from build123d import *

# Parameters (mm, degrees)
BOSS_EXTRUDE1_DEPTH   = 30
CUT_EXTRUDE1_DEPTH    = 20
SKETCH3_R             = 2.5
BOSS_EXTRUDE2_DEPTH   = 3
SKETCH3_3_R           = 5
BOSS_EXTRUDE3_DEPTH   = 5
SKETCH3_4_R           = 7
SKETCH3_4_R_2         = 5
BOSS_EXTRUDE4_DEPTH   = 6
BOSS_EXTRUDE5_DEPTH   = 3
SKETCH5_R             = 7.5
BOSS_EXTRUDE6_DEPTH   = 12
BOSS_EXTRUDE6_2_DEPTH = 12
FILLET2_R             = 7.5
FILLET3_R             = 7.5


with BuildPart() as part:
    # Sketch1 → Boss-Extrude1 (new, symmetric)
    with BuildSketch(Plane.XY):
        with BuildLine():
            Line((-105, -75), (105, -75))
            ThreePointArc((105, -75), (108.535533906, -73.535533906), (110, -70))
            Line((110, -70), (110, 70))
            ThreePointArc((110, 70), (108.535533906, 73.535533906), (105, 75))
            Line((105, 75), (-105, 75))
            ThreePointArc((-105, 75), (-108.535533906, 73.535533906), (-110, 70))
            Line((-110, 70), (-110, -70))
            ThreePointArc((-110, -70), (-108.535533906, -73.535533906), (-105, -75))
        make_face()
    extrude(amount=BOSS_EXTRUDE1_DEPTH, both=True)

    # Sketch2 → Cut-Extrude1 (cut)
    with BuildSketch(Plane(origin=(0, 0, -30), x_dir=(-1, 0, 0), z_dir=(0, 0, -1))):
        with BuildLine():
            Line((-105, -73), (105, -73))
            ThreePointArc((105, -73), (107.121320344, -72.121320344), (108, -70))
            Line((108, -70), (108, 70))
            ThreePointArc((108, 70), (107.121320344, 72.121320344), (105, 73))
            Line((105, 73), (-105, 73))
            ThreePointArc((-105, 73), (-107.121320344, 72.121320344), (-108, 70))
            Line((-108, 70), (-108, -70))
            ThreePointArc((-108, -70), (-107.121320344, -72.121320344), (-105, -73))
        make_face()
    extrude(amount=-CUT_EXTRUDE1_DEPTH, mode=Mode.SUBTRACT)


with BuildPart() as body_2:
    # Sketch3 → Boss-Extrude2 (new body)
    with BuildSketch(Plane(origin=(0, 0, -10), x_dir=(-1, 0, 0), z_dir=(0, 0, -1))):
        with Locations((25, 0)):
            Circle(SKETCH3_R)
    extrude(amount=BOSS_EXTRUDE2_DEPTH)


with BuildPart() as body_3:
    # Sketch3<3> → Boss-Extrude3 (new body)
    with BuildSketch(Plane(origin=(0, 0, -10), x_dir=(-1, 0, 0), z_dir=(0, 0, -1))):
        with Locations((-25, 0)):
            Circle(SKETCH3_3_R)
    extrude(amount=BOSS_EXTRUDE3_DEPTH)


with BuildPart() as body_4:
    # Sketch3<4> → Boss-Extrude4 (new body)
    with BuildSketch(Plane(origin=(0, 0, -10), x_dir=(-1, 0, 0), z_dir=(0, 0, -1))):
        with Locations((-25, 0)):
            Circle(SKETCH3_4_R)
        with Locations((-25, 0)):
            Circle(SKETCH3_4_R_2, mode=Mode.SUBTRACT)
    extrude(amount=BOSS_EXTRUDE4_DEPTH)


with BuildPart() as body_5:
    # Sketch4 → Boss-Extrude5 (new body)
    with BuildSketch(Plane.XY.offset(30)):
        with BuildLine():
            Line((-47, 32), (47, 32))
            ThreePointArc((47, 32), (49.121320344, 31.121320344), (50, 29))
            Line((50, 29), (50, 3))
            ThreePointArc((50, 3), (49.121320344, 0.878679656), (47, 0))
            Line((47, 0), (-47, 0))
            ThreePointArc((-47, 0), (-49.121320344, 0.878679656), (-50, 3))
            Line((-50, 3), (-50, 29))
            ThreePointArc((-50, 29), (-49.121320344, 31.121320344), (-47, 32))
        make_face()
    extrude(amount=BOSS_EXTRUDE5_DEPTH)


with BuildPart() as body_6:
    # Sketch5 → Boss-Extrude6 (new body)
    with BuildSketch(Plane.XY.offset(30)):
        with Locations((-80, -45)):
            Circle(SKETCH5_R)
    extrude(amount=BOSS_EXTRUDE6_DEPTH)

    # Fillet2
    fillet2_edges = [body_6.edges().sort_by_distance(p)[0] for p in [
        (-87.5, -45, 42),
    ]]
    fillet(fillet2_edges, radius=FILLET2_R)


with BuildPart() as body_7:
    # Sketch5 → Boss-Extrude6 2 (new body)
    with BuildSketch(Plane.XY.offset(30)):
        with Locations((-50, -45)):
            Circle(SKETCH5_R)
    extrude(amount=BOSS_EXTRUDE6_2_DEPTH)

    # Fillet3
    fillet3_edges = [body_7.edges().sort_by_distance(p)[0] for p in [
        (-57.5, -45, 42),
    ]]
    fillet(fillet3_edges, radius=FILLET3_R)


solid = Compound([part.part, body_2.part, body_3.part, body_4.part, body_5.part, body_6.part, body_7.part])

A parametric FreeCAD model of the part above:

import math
import FreeCAD as App
import Part
import Sketcher

V = App.Vector
Q = App.Units.Quantity


def edges_at(feature, points):
    """Names of the edges that pass closest to the given points."""
    edges = feature.Shape.Edges
    near = lambda p: min(range(len(edges)), key=lambda i: edges[i].distToShape(Part.Vertex(*p))[0])
    return sorted({f"Edge{near(p) + 1}" for p in points})

doc = App.newDocument("Part")
body = doc.addObject("PartDesign::Body", "Body")

# Sketch on XY plane
sketch1 = doc.addObject("Sketcher::SketchObject", "Sketch")
body.addObject(sketch1)
sketch1.AttachmentSupport = (doc.XY_Plane, [""])
sketch1.MapMode = "FlatFace"
sketch1.addGeometry([
    Part.LineSegment(V(-105, -75, 0), V(105, -75, 0)),  # 0
    Part.ArcOfCircle(Part.Circle(V(105, -70, 0), V(0, 0, 1), 5), math.radians(-90), math.radians(0)),  # 1
    Part.LineSegment(V(110, -70, 0), V(110, 70, 0)),  # 2
    Part.ArcOfCircle(Part.Circle(V(105, 70, 0), V(0, 0, 1), 5), math.radians(0), math.radians(90)),  # 3
    Part.LineSegment(V(105, 75, 0), V(-105, 75, 0)),  # 4
    Part.ArcOfCircle(Part.Circle(V(-105, 70, 0), V(0, 0, 1), 5), math.radians(90), math.radians(180)),  # 5
    Part.LineSegment(V(-110, 70, 0), V(-110, -70, 0)),  # 6
    Part.ArcOfCircle(Part.Circle(V(-105, -70, 0), V(0, 0, 1), 5), math.radians(180), math.radians(270)),  # 7
], False)
sketch1.addConstraint([
    Sketcher.Constraint("Tangent", 0, 2, 1, 1),
    Sketcher.Constraint("Tangent", 1, 2, 2, 1),
    Sketcher.Constraint("Tangent", 2, 2, 3, 1),
    Sketcher.Constraint("Tangent", 3, 2, 4, 1),
    Sketcher.Constraint("Tangent", 4, 2, 5, 1),
    Sketcher.Constraint("Tangent", 5, 2, 6, 1),
    Sketcher.Constraint("Tangent", 6, 2, 7, 1),
    Sketcher.Constraint("Tangent", 7, 2, 0, 1),
    Sketcher.Constraint("Horizontal", 0),
    Sketcher.Constraint("Vertical", 2),
    Sketcher.Constraint("Horizontal", 4),
    Sketcher.Constraint("Vertical", 6),
    Sketcher.Constraint("Equal", 1, 3),
    Sketcher.Constraint("Equal", 3, 5),
    Sketcher.Constraint("Equal", 5, 7),
    Sketcher.Constraint("Symmetric", 1, 3, 5, 3, -1, 1),
    Sketcher.Constraint("Radius", 1, Q("5 mm")),
    Sketcher.Constraint("DistanceX", 0, 1, 0, 2, Q("210 mm")),
    Sketcher.Constraint("DistanceY", 2, 1, 2, 2, Q("140 mm")),
])
pad1 = doc.addObject("PartDesign::Pad", "Pad")
body.addObject(pad1)
pad1.Profile = sketch1
pad1.Length = 60
pad1.Midplane = True

# Sketch on XY plane
sketch2 = doc.addObject("Sketcher::SketchObject", "Sketch001")
body.addObject(sketch2)
sketch2.AttachmentSupport = (doc.XY_Plane, [""])
sketch2.MapMode = "FlatFace"
sketch2.AttachmentOffset = App.Placement(V(0, 0, -30), App.Rotation())
sketch2.addGeometry([
    Part.LineSegment(V(105, -73, 0), V(-105, -73, 0)),  # 0
    Part.ArcOfCircle(Part.Circle(V(-105, -70, 0), V(0, 0, 1), 3), math.radians(180), math.radians(270)),  # 1
    Part.LineSegment(V(-108, -70, 0), V(-108, 70, 0)),  # 2
    Part.ArcOfCircle(Part.Circle(V(-105, 70, 0), V(0, 0, 1), 3), math.radians(90), math.radians(180)),  # 3
    Part.LineSegment(V(-105, 73, 0), V(105, 73, 0)),  # 4
    Part.ArcOfCircle(Part.Circle(V(105, 70, 0), V(0, 0, 1), 3), math.radians(0), math.radians(90)),  # 5
    Part.LineSegment(V(108, 70, 0), V(108, -70, 0)),  # 6
    Part.ArcOfCircle(Part.Circle(V(105, -70, 0), V(0, 0, 1), 3), math.radians(-90), math.radians(0)),  # 7
], False)
sketch2.addConstraint([
    Sketcher.Constraint("Tangent", 0, 2, 1, 2),
    Sketcher.Constraint("Tangent", 1, 1, 2, 1),
    Sketcher.Constraint("Tangent", 2, 2, 3, 2),
    Sketcher.Constraint("Tangent", 3, 1, 4, 1),
    Sketcher.Constraint("Tangent", 4, 2, 5, 2),
    Sketcher.Constraint("Tangent", 5, 1, 6, 1),
    Sketcher.Constraint("Tangent", 6, 2, 7, 2),
    Sketcher.Constraint("Tangent", 7, 1, 0, 1),
    Sketcher.Constraint("Horizontal", 0),
    Sketcher.Constraint("Vertical", 2),
    Sketcher.Constraint("Horizontal", 4),
    Sketcher.Constraint("Vertical", 6),
    Sketcher.Constraint("Equal", 1, 3),
    Sketcher.Constraint("Equal", 3, 5),
    Sketcher.Constraint("Equal", 5, 7),
    Sketcher.Constraint("Symmetric", 1, 3, 5, 3, -1, 1),
    Sketcher.Constraint("Radius", 1, Q("3 mm")),
    Sketcher.Constraint("DistanceX", 0, 2, 0, 1, Q("210 mm")),
    Sketcher.Constraint("DistanceY", 2, 1, 2, 2, Q("140 mm")),
])
pocket1 = doc.addObject("PartDesign::Pocket", "Pocket")
body.addObject(pocket1)
pocket1.Profile = sketch2
pocket1.Length = 20
pocket1.Reversed = True
body2 = doc.addObject("PartDesign::Body", "Body001")

# Sketch on XY plane
sketch3 = doc.addObject("Sketcher::SketchObject", "Sketch002")
body2.addObject(sketch3)
sketch3.AttachmentSupport = (doc.getObject("XY_Plane001"), [""])
sketch3.MapMode = "FlatFace"
sketch3.AttachmentOffset = App.Placement(V(0, 0, -10), App.Rotation())
sketch3.addGeometry(Part.Circle(V(-25, 0, 0), V(0, 0, 1), 2.5), False)
sketch3.addConstraint([
    Sketcher.Constraint("PointOnObject", 0, 3, -1),
    Sketcher.Constraint("Diameter", 0, Q("5 mm")),
    Sketcher.Constraint("DistanceX", 0, 3, -1, 1, Q("25 mm")),
])
pad2 = doc.addObject("PartDesign::Pad", "Pad001")
body2.addObject(pad2)
pad2.Profile = sketch3
pad2.Length = 3
pad2.Reversed = True
body3 = doc.addObject("PartDesign::Body", "Body002")

# Sketch on XY plane
sketch4 = doc.addObject("Sketcher::SketchObject", "Sketch003")
body3.addObject(sketch4)
sketch4.AttachmentSupport = (doc.getObject("XY_Plane002"), [""])
sketch4.MapMode = "FlatFace"
sketch4.AttachmentOffset = App.Placement(V(0, 0, -10), App.Rotation())
sketch4.addGeometry(Part.Circle(V(25, 0, 0), V(0, 0, 1), 5), False)
sketch4.addConstraint([
    Sketcher.Constraint("PointOnObject", 0, 3, -1),
    Sketcher.Constraint("Diameter", 0, Q("10 mm")),
    Sketcher.Constraint("DistanceX", -1, 1, 0, 3, Q("25 mm")),
])
pad3 = doc.addObject("PartDesign::Pad", "Pad002")
body3.addObject(pad3)
pad3.Profile = sketch4
pad3.Length = 5
pad3.Reversed = True
body4 = doc.addObject("PartDesign::Body", "Body003")

# Sketch on XY plane
sketch5 = doc.addObject("Sketcher::SketchObject", "Sketch004")
body4.addObject(sketch5)
sketch5.AttachmentSupport = (doc.getObject("XY_Plane003"), [""])
sketch5.MapMode = "FlatFace"
sketch5.AttachmentOffset = App.Placement(V(0, 0, -10), App.Rotation())
sketch5.addGeometry([
    Part.Circle(V(25, 0, 0), V(0, 0, 1), 7),
    Part.Circle(V(25, 0, 0), V(0, 0, 1), 5),
], False)
sketch5.addConstraint([
    Sketcher.Constraint("Coincident", 1, 3, 0, 3),
    Sketcher.Constraint("PointOnObject", 0, 3, -1),
    Sketcher.Constraint("Diameter", 0, Q("14 mm")),
    Sketcher.Constraint("Diameter", 1, Q("10 mm")),
    Sketcher.Constraint("DistanceX", -1, 1, 0, 3, Q("25 mm")),
])
pad4 = doc.addObject("PartDesign::Pad", "Pad003")
body4.addObject(pad4)
pad4.Profile = sketch5
pad4.Length = 6
pad4.Reversed = True
body5 = doc.addObject("PartDesign::Body", "Body004")

# Sketch on XY plane
sketch6 = doc.addObject("Sketcher::SketchObject", "Sketch005")
body5.addObject(sketch6)
sketch6.AttachmentSupport = (doc.getObject("XY_Plane004"), [""])
sketch6.MapMode = "FlatFace"
sketch6.AttachmentOffset = App.Placement(V(0, 0, 30), App.Rotation())
sketch6.addGeometry([
    Part.LineSegment(V(47, 32, 0), V(-47, 32, 0)),  # 0
    Part.ArcOfCircle(Part.Circle(V(-47, 29, 0), V(0, 0, 1), 3), math.radians(90), math.radians(180)),  # 1
    Part.LineSegment(V(-50, 29, 0), V(-50, 3, 0)),  # 2
    Part.ArcOfCircle(Part.Circle(V(-47, 3, 0), V(0, 0, 1), 3), math.radians(180), math.radians(270)),  # 3
    Part.LineSegment(V(-47, 0, 0), V(47, 0, 0)),  # 4
    Part.ArcOfCircle(Part.Circle(V(47, 3, 0), V(0, 0, 1), 3), math.radians(-90), math.radians(0)),  # 5
    Part.LineSegment(V(50, 3, 0), V(50, 29, 0)),  # 6
    Part.ArcOfCircle(Part.Circle(V(47, 29, 0), V(0, 0, 1), 3), math.radians(0), math.radians(90)),  # 7
], False)
sketch6.addConstraint([
    Sketcher.Constraint("Tangent", 0, 2, 1, 1),
    Sketcher.Constraint("Tangent", 1, 2, 2, 1),
    Sketcher.Constraint("Tangent", 2, 2, 3, 1),
    Sketcher.Constraint("Tangent", 3, 2, 4, 1),
    Sketcher.Constraint("Tangent", 4, 2, 5, 1),
    Sketcher.Constraint("Tangent", 5, 2, 6, 1),
    Sketcher.Constraint("Tangent", 6, 2, 7, 1),
    Sketcher.Constraint("Tangent", 7, 2, 0, 1),
    Sketcher.Constraint("Horizontal", 0),
    Sketcher.Constraint("Vertical", 2),
    Sketcher.Constraint("Horizontal", 4),
    Sketcher.Constraint("Vertical", 6),
    Sketcher.Constraint("Equal", 1, 3),
    Sketcher.Constraint("Equal", 3, 5),
    Sketcher.Constraint("Equal", 5, 7),
    Sketcher.Constraint("Symmetric", 3, 2, 4, 2, -1, 1),
    Sketcher.Constraint("Radius", 1, Q("3 mm")),
    Sketcher.Constraint("DistanceX", 0, 2, 0, 1, Q("94 mm")),
    Sketcher.Constraint("DistanceY", 2, 2, 2, 1, Q("26 mm")),
])
pad5 = doc.addObject("PartDesign::Pad", "Pad004")
body5.addObject(pad5)
pad5.Profile = sketch6
pad5.Length = 3
body6 = doc.addObject("PartDesign::Body", "Body005")

# Sketch on XY plane
sketch7 = doc.addObject("Sketcher::SketchObject", "Sketch006")
body6.addObject(sketch7)
sketch7.AttachmentSupport = (doc.getObject("XY_Plane005"), [""])
sketch7.MapMode = "FlatFace"
sketch7.AttachmentOffset = App.Placement(V(0, 0, 30), App.Rotation())
sketch7.addGeometry(Part.Circle(V(-80, -45, 0), V(0, 0, 1), 7.5), False)
sketch7.addConstraint([
    Sketcher.Constraint("Diameter", 0, Q("15 mm")),
    Sketcher.Constraint("DistanceX", 0, 3, -1, 1, Q("80 mm")),
    Sketcher.Constraint("DistanceY", 0, 3, -1, 1, Q("45 mm")),
])
pad6 = doc.addObject("PartDesign::Pad", "Pad005")
body6.addObject(pad6)
pad6.Profile = sketch7
pad6.Length = 12
doc.recompute()

fillet = doc.addObject("PartDesign::Fillet", "Fillet")
body6.addObject(fillet)
fillet.Base = (pad6, edges_at(pad6, [(-87.5, -45, 42)]))
fillet.Radius = 7.5
body7 = doc.addObject("PartDesign::Body", "Body006")

# Sketch on XY plane
sketch8 = doc.addObject("Sketcher::SketchObject", "Sketch007")
body7.addObject(sketch8)
sketch8.AttachmentSupport = (doc.getObject("XY_Plane006"), [""])
sketch8.MapMode = "FlatFace"
sketch8.AttachmentOffset = App.Placement(V(0, 0, 30), App.Rotation())
sketch8.addGeometry(Part.Circle(V(-50, -45, 0), V(0, 0, 1), 7.5), False)
sketch8.addConstraint([
    Sketcher.Constraint("Diameter", 0, Q("15 mm")),
    Sketcher.Constraint("DistanceX", 0, 3, -1, 1, Q("50 mm")),
    Sketcher.Constraint("DistanceY", 0, 3, -1, 1, Q("45 mm")),
])
pad7 = doc.addObject("PartDesign::Pad", "Pad006")
body7.addObject(pad7)
pad7.Profile = sketch8
pad7.Length = 12
doc.recompute()

fillet2 = doc.addObject("PartDesign::Fillet", "Fillet001")
body7.addObject(fillet2)
fillet2.Base = (pad7, edges_at(pad7, [(-57.5, -45, 42)]))
fillet2.Radius = 7.5

doc.recompute()
